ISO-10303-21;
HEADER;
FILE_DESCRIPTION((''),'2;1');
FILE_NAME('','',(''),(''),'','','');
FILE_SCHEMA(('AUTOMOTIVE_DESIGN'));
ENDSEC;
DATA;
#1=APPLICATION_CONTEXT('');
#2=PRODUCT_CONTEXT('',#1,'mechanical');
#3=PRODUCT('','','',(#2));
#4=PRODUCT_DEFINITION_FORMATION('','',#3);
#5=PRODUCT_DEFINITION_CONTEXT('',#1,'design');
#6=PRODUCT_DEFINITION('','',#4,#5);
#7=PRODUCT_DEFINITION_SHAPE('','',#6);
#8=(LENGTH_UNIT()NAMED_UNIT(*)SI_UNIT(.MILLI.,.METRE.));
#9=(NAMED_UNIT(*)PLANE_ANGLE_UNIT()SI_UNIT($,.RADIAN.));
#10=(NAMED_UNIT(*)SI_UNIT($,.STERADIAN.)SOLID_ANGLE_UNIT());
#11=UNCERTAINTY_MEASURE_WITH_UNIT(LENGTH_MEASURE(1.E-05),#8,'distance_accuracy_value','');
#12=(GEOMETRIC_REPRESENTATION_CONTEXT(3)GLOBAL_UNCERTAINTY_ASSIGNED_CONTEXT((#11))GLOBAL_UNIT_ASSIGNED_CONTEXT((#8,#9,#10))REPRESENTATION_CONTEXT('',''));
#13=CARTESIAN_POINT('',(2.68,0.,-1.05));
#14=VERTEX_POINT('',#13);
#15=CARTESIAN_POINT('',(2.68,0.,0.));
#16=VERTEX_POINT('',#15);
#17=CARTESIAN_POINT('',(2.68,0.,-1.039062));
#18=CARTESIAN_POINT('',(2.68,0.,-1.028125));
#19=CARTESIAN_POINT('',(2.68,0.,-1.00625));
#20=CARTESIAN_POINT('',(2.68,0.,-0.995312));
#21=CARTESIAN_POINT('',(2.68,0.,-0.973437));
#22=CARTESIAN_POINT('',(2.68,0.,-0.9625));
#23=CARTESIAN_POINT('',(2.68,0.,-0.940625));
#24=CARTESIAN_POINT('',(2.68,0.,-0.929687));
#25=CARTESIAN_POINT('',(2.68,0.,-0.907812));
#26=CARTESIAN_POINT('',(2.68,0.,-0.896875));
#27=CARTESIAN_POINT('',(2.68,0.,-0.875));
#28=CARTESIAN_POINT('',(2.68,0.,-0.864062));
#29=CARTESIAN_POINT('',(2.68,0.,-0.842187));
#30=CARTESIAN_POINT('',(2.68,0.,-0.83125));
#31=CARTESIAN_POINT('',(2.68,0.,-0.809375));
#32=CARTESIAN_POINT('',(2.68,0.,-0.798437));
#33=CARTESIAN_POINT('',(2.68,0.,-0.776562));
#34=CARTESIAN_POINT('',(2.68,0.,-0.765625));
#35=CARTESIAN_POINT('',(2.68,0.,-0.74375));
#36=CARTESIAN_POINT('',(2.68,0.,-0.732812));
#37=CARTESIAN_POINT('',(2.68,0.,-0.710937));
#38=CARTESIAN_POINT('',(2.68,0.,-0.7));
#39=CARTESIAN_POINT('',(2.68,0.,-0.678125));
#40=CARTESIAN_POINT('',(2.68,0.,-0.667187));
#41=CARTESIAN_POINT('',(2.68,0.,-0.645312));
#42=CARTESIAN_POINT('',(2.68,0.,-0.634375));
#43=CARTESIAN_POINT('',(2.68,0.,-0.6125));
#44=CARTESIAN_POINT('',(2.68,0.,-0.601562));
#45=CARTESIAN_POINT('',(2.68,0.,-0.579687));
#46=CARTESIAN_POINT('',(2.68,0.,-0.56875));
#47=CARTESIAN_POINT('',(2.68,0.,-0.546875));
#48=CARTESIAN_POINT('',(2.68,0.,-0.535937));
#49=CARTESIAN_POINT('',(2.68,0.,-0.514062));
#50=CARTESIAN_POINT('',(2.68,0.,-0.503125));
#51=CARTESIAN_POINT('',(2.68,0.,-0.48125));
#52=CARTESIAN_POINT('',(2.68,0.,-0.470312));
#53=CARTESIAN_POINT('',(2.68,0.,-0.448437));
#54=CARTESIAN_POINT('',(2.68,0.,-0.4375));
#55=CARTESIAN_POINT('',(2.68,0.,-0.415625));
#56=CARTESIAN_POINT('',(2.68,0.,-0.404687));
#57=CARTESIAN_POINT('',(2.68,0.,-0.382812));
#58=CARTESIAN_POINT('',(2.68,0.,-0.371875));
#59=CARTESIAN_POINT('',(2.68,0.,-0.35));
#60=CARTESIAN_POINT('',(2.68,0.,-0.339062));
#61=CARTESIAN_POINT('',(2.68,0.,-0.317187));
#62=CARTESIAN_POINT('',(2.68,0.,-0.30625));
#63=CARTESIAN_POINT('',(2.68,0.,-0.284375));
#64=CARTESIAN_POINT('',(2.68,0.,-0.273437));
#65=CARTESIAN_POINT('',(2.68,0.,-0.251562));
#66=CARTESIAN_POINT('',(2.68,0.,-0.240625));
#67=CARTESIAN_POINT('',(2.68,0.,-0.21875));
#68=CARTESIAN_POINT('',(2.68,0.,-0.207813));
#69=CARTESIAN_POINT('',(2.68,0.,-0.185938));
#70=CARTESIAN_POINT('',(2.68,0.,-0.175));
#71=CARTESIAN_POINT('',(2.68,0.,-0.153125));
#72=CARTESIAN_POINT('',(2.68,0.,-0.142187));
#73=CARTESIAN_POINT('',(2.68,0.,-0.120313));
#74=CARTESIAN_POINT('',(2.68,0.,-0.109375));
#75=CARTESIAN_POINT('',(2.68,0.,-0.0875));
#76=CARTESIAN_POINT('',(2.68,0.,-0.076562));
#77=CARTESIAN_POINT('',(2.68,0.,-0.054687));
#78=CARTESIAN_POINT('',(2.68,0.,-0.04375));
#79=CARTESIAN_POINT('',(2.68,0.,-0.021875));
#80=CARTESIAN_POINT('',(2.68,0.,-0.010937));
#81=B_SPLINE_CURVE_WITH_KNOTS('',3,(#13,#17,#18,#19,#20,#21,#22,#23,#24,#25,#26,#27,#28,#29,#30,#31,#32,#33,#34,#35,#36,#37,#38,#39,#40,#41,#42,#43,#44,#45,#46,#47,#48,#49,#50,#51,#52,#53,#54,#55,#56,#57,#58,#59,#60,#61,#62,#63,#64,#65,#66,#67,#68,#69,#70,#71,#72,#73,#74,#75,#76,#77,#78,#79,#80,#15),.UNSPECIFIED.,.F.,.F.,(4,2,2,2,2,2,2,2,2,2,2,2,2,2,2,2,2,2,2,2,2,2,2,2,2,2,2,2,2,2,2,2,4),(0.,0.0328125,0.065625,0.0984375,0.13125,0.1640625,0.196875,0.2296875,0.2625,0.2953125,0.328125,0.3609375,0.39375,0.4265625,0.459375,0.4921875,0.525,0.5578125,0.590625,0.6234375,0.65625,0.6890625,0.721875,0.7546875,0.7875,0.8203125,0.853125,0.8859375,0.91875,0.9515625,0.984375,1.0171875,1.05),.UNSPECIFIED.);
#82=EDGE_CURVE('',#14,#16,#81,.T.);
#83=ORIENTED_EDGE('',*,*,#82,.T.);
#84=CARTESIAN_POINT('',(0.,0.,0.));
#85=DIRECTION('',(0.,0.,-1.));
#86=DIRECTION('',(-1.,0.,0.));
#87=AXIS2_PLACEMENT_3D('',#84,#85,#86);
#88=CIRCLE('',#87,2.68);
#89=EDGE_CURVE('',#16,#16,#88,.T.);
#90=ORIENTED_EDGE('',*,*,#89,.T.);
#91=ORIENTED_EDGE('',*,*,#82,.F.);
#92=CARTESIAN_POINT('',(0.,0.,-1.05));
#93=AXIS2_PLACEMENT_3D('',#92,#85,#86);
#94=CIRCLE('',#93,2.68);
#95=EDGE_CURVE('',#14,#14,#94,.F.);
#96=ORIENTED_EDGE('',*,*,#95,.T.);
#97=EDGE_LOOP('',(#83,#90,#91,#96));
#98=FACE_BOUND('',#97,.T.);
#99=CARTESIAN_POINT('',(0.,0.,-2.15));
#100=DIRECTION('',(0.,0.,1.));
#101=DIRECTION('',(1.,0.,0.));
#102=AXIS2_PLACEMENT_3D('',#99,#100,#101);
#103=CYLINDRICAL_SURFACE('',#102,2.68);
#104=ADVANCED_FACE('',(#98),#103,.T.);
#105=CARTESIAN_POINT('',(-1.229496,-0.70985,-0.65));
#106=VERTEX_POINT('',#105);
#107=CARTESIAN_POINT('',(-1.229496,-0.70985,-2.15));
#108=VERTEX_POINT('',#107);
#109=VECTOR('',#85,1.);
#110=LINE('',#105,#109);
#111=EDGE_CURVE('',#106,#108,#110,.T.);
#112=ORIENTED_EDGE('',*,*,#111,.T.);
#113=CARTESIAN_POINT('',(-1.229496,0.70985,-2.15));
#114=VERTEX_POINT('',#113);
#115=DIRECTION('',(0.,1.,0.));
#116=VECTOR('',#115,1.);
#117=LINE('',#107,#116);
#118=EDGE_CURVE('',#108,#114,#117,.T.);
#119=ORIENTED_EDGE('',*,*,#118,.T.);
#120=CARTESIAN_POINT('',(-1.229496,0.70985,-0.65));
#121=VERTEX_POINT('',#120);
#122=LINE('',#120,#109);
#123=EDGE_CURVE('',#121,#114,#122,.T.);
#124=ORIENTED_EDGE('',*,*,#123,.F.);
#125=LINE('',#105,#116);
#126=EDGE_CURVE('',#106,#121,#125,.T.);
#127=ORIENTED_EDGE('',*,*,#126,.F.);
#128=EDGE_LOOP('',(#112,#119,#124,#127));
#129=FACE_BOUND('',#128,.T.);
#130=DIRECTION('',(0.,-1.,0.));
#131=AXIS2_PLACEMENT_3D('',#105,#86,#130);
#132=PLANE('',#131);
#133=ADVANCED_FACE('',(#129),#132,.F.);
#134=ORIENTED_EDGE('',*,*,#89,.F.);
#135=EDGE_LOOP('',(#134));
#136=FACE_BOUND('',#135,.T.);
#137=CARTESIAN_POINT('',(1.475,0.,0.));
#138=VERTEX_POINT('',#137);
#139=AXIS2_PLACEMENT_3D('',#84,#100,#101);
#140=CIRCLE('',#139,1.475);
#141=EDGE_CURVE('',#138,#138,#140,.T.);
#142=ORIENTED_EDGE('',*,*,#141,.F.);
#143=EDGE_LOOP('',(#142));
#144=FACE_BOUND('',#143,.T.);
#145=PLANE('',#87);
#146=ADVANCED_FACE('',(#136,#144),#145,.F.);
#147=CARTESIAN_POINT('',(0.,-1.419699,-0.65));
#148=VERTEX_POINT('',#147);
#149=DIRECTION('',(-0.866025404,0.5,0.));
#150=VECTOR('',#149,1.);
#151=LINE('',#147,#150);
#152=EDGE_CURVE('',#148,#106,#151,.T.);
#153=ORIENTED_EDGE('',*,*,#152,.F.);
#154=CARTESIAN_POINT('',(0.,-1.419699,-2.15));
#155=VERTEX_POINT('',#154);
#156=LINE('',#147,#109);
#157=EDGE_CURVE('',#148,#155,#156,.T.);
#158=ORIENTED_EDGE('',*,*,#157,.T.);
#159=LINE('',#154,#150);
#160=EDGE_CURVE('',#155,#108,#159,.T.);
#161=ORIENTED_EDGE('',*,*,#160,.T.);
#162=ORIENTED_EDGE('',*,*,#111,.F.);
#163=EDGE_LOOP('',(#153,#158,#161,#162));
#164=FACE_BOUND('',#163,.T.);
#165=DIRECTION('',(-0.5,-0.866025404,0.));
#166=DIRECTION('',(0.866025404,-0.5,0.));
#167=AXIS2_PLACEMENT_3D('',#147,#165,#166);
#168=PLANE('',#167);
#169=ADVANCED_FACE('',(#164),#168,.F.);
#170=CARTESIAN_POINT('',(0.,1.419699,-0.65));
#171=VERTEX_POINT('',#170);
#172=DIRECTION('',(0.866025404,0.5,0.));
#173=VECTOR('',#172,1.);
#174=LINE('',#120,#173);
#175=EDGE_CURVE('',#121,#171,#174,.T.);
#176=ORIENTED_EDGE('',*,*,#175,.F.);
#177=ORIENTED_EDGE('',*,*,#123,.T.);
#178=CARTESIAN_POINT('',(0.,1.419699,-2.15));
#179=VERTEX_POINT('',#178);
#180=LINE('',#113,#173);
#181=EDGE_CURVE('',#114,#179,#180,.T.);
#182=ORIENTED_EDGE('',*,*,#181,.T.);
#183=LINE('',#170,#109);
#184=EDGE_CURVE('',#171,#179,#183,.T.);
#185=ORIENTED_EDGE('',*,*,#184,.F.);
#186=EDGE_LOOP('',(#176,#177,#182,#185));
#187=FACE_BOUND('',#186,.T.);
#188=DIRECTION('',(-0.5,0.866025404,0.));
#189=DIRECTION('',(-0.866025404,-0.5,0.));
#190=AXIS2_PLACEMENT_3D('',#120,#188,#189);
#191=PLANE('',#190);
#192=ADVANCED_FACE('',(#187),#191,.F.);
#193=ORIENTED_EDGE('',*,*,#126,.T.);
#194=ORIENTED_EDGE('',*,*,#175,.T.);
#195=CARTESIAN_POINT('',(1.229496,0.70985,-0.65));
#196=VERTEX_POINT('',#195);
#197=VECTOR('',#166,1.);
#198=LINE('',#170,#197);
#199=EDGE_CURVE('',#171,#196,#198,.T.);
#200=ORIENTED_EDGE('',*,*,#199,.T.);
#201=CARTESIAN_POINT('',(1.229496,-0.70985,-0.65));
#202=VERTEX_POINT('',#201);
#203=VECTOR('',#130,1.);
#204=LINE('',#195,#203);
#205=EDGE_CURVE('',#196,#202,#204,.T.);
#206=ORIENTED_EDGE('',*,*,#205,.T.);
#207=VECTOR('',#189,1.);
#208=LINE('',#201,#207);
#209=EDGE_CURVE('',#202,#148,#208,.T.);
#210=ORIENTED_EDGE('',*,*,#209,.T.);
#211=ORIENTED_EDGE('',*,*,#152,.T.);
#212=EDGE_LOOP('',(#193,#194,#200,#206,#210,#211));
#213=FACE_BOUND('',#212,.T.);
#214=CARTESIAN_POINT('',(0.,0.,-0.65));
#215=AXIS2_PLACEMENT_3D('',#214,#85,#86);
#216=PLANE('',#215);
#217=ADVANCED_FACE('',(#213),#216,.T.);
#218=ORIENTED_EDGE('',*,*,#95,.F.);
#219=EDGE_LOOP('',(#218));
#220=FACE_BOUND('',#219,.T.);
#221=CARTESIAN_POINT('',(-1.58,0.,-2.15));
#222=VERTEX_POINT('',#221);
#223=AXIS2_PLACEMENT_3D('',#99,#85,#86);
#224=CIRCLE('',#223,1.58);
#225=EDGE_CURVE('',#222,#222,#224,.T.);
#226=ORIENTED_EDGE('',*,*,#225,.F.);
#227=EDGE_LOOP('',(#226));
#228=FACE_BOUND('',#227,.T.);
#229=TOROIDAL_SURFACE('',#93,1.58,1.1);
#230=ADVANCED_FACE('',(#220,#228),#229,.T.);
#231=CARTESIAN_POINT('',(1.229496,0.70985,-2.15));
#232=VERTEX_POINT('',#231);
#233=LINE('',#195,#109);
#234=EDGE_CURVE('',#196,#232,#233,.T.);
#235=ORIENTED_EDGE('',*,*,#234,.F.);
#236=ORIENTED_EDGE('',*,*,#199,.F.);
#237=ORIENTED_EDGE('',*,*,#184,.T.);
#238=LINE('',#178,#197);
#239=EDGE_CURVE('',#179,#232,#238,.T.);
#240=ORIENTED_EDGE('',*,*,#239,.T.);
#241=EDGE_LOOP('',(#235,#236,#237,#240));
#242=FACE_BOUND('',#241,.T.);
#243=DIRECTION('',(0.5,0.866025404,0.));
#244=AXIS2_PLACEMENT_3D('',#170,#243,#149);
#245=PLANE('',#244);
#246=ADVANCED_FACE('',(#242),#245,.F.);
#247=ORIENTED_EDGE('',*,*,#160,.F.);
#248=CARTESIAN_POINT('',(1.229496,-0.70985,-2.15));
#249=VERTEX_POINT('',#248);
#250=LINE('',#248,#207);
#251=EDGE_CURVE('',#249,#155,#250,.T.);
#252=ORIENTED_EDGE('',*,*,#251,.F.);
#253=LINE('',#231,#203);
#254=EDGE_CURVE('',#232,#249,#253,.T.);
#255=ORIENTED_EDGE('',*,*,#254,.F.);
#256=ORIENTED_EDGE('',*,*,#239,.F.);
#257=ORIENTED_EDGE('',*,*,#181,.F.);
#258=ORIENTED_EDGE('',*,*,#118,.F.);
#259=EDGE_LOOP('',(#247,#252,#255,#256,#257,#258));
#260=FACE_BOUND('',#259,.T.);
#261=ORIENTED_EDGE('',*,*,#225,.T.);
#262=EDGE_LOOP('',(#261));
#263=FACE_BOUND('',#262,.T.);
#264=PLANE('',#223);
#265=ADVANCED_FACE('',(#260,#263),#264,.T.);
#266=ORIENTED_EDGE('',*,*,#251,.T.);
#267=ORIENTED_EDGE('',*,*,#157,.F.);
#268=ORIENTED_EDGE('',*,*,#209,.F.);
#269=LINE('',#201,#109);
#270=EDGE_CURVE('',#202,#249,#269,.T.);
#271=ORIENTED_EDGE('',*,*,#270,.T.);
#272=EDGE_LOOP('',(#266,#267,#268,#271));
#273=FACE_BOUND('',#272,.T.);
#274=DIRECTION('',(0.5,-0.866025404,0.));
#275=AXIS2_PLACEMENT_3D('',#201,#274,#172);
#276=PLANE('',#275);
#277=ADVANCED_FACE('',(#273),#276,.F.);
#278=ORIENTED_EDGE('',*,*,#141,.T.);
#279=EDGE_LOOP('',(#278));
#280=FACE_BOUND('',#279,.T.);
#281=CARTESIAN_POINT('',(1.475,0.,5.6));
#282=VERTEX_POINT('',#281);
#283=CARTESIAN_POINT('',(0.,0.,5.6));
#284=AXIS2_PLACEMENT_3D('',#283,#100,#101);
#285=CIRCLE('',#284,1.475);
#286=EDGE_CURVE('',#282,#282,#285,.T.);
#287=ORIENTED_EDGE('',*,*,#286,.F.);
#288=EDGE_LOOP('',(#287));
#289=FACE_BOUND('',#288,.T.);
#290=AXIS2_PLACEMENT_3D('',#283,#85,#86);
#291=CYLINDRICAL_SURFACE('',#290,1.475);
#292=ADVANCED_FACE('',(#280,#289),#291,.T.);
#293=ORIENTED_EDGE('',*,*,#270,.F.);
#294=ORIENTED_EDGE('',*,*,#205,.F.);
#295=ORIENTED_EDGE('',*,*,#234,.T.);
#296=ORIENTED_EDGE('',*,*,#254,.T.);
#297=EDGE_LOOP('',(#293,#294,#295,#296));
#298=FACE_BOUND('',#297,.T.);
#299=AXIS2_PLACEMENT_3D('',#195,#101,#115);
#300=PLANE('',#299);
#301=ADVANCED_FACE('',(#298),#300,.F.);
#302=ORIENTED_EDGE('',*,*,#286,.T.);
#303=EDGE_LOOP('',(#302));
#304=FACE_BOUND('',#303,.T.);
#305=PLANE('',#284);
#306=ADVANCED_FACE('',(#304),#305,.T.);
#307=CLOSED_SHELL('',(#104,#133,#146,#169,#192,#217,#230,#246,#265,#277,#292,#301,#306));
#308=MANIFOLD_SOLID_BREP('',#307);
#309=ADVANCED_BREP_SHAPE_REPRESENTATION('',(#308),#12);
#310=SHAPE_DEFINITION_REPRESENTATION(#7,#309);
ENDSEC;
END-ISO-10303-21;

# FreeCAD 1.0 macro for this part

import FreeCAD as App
import Part
import Sketcher

V = App.Vector
Q = App.Units.Quantity


def edges_at(feature, points):
    """Names of the edges that pass closest to the given points."""
    edges = feature.Shape.Edges
    near = lambda p: min(range(len(edges)), key=lambda i: edges[i].distToShape(Part.Vertex(*p))[0])
    return sorted({f"Edge{near(p) + 1}" for p in points})


def add_polygon(sketch, points):
    """Adds a closed chain of lines whose ends are joined by coincident constraints."""
    first, n = sketch.GeometryCount, len(points)
    for a, b in zip(points, points[1:] + points[:1]):
        sketch.addGeometry(Part.LineSegment(App.Vector(*a, 0), App.Vector(*b, 0)), False)
    for i in range(n):
        sketch.addConstraint(Sketcher.Constraint("Coincident", first + i, 2, first + (i + 1) % n, 1))

doc = App.newDocument("Part")
params = doc.addObject("Spreadsheet::Sheet", "Params")
for row, (alias, value) in enumerate([
    ("sketch1_diameter", "2.95 mm"),
    ("pad1_length", "5.6 mm"),
    ("sketch2_diameter", "5.36 mm"),
    ("pad2_length", "2.15 mm"),
    ("pocket1_length", "1.5 mm"),
    ("fillet_radius", "1.1 mm"),
], start=1):
    params.set(f"A{row}", alias)
    params.set(f"B{row}", "=" + value)
    params.setAlias(f"B{row}", alias)

body = doc.addObject("PartDesign::Body", "Body")

# Sketch on XY plane
sketch1 = doc.addObject("Sketcher::SketchObject", "Sketch")
body.addObject(sketch1)
sketch1.AttachmentSupport = (doc.XY_Plane, [""])
sketch1.MapMode = "FlatFace"
sketch1.addGeometry(Part.Circle(V(0, 0, 0), V(0, 0, 1), 1.5), False)
sketch1.addConstraint([
    Sketcher.Constraint("Coincident", 0, 3, -1, 1),
    Sketcher.Constraint("Diameter", 0, Q("2.95 mm")),
])
sketch1.setExpression("Constraints[1]", "Params.sketch1_diameter")
pad1 = doc.addObject("PartDesign::Pad", "Pad")
body.addObject(pad1)
pad1.Profile = sketch1
pad1.setExpression("Length", "Params.pad1_length")

# Sketch on XY plane
sketch2 = doc.addObject("Sketcher::SketchObject", "Sketch001")
body.addObject(sketch2)
sketch2.AttachmentSupport = (doc.XY_Plane, [""])
sketch2.MapMode = "FlatFace"
sketch2.addGeometry(Part.Circle(V(0, 0, 0), V(0, 0, 1), 2.7), False)
sketch2.addConstraint([
    Sketcher.Constraint("Coincident", 0, 3, -1, 1),
    Sketcher.Constraint("Diameter", 0, Q("5.36 mm")),
])
sketch2.setExpression("Constraints[1]", "Params.sketch2_diameter")
pad2 = doc.addObject("PartDesign::Pad", "Pad001")
body.addObject(pad2)
pad2.Profile = sketch2
pad2.setExpression("Length", "Params.pad2_length")
pad2.Reversed = True

# Sketch on XY plane
sketch3 = doc.addObject("Sketcher::SketchObject", "Sketch002")
body.addObject(sketch3)
sketch3.AttachmentSupport = (doc.XY_Plane, [""])
sketch3.MapMode = "FlatFace"
sketch3.AttachmentOffset = App.Placement(V(0, 0, -2.15), App.Rotation())
add_polygon(sketch3, [(0, -1.4), (-1.2, -0.7), (-1.2, 0.7), (0, 1.4), (1.2, 0.7), (1.2, -0.7)])  # lines 0-5
sketch3.addConstraint([
    Sketcher.Constraint("Vertical", 1),
    Sketcher.Constraint("Vertical", 4),
    Sketcher.Constraint("Symmetric", 0, 2, 3, 2, -1, 1),
    Sketcher.Constraint("Symmetric", 2, 2, 5, 2, -1, 1),
    Sketcher.Constraint("PointOnObject", 2, 2, -2),
    Sketcher.Constraint("Parallel", 2, 5),
    Sketcher.Constraint("Horizontal", 1, 2, 3, 2),
    Sketcher.Constraint("Angle", 0, Q("150 deg")),
    Sketcher.Constraint("DistanceY", 1, 1, 1, 2, Q("1.419699 mm")),
    Sketcher.Constraint("Distance", 0, Q("1.419699 mm")),
])
pocket1 = doc.addObject("PartDesign::Pocket", "Pocket")
body.addObject(pocket1)
pocket1.Profile = sketch3
pocket1.setExpression("Length", "Params.pocket1_length")
pocket1.Reversed = True
doc.recompute()

fillet = doc.addObject("PartDesign::Fillet", "Fillet")
body.addObject(fillet)
fillet.Base = (pocket1, edges_at(pocket1, [(-2.68, 0, -2.15)]))
fillet.setExpression("Radius", "Params.fillet_radius")

doc.recompute()
